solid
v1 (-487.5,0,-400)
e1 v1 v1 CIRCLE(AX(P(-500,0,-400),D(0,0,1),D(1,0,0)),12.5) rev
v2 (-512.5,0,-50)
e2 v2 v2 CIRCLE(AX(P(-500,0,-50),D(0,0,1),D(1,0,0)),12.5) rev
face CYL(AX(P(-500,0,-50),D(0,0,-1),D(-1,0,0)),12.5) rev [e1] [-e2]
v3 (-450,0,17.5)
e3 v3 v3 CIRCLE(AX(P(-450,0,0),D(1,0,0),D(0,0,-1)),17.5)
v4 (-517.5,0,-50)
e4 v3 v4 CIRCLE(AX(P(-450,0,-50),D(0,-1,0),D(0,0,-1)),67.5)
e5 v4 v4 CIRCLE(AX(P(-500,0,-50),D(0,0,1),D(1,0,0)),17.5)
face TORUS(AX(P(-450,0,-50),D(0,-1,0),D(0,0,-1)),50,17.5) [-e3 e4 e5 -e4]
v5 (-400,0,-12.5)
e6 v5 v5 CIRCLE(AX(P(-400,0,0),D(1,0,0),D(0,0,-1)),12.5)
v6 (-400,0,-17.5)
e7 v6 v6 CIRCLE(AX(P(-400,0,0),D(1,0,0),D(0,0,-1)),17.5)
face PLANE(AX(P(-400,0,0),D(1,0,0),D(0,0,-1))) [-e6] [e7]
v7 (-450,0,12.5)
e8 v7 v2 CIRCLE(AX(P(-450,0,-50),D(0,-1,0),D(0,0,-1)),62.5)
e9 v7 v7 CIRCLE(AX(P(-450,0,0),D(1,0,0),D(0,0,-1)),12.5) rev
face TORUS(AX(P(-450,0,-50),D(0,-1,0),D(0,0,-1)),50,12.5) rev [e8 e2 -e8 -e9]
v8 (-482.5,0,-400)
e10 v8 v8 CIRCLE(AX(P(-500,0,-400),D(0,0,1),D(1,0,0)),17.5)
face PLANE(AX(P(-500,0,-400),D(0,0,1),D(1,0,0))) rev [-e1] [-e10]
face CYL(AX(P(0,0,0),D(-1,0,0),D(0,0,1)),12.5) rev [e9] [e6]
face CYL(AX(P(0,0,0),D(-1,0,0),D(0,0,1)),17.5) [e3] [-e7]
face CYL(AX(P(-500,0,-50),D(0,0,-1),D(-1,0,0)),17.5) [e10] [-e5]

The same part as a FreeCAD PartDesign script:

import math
import FreeCAD as App
import Part
import Sketcher
from FreeCAD import Vector
Q = App.Units.Quantity

doc = App.newDocument("Part")
params = doc.addObject("Spreadsheet::Sheet", "Params")
for row, (alias, value) in enumerate([
    ("sketch1_diameter", "35 mm"),
    ("sketch1_diameter2", "25 mm"),
    ("sketch2_radius", "50 mm"),
    ("sketch2_width", "450 mm"),
    ("sketch2_height", "350 mm"),
    ("sketch3_diameter", "35 mm"),
    ("sketch3_diameter2", "25 mm"),
    ("pocket1_length", "250 mm"),
    ("sketch4_diameter", "35 mm"),
    ("sketch4_diameter2", "25 mm"),
    ("pocket2_length", "150 mm"),
], start=1):
    params.set(f"A{row}", alias)
    params.set(f"B{row}", "=" + value)
    params.setAlias(f"B{row}", alias)

body = doc.addObject("PartDesign::Body", "Body")

# Sketch on YZ plane
sketch1 = doc.addObject("Sketcher::SketchObject", "Sketch")
body.addObject(sketch1)
sketch1.AttachmentSupport = (doc.YZ_Plane, [""])
sketch1.MapMode = "FlatFace"
sketch1.addGeometry([
    Part.Circle(Vector(0, 0, 0), Vector(0, 0, 1), 17.5),
    Part.Circle(Vector(0, 0, 0), Vector(0, 0, 1), 12.5),
], False)
sketch1.addConstraint([
    Sketcher.Constraint("Coincident", 0, 3, -1, 1),
    Sketcher.Constraint("Coincident", 1, 3, -1, 1),
    Sketcher.Constraint("Diameter", 0, Q("35 mm")),
    Sketcher.Constraint("Diameter", 1, Q("25 mm")),
])
sketch1.setExpression("Constraints[2]", "Params.sketch1_diameter")
sketch1.setExpression("Constraints[3]", "Params.sketch1_diameter2")

# Sketch on XZ plane
sketch2 = doc.addObject("Sketcher::SketchObject", "Sketch001")
body.addObject(sketch2)
sketch2.AttachmentSupport = (doc.XZ_Plane, [""])
sketch2.MapMode = "FlatFace"
sketch2.addGeometry([
    Part.LineSegment(Vector(0, 0, 0), Vector(-450, 0, 0)),
    Part.ArcOfCircle(Part.Circle(Vector(-450, -50, 0), Vector(0, 0, 1), 50), math.radians(90), math.radians(180)),
    Part.LineSegment(Vector(-500, -50, 0), Vector(-500, -400, 0)),
], False)
sketch2.addConstraint([
    Sketcher.Constraint("Tangent", 0, 2, 1, 1),
    Sketcher.Constraint("Tangent", 1, 2, 2, 1),
    Sketcher.Constraint("Horizontal", 0),
    Sketcher.Constraint("Vertical", 2),
    Sketcher.Constraint("Coincident", 0, 1, -1, 1),
    Sketcher.Constraint("Radius", 1, Q("50 mm")),
    Sketcher.Constraint("DistanceX", 0, 2, 0, 1, Q("450 mm")),
    Sketcher.Constraint("DistanceY", 2, 2, 2, 1, Q("350 mm")),
])
sketch2.setExpression("Constraints[5]", "Params.sketch2_radius")
sketch2.setExpression("Constraints[6]", "Params.sketch2_width")
sketch2.setExpression("Constraints[7]", "Params.sketch2_height")
doc.recompute()

additivepipe = doc.addObject("PartDesign::AdditivePipe", "AdditivePipe")
body.addObject(additivepipe)
additivepipe.Profile = sketch1
additivepipe.Spine = (sketch2, ["Edge1", "Edge2", "Edge3"])

# Sketch on YZ plane
sketch3 = doc.addObject("Sketcher::SketchObject", "Sketch002")
body.addObject(sketch3)
sketch3.AttachmentSupport = (doc.YZ_Plane, [""])
sketch3.MapMode = "FlatFace"
sketch3.AttachmentOffset = App.Placement(Vector(0, 0, -250), App.Rotation())
sketch3.addGeometry([
    Part.Circle(Vector(0, 0, 0), Vector(0, 0, 1), 17.5),
    Part.Circle(Vector(0, 0, 0), Vector(0, 0, 1), 12.5),
], False)
sketch3.addConstraint([
    Sketcher.Constraint("Coincident", 0, 3, -1, 1),
    Sketcher.Constraint("Coincident", 1, 3, -1, 1),
    Sketcher.Constraint("Diameter", 0, Q("35 mm")),
    Sketcher.Constraint("Diameter", 1, Q("25 mm")),
])
sketch3.setExpression("Constraints[2]", "Params.sketch3_diameter")
sketch3.setExpression("Constraints[3]", "Params.sketch3_diameter2")
pocket1 = doc.addObject("PartDesign::Pocket", "Pocket")
body.addObject(pocket1)
pocket1.Profile = sketch3
pocket1.setExpression("Length", "Params.pocket1_length")
pocket1.Reversed = True

# Sketch on YZ plane
sketch4 = doc.addObject("Sketcher::SketchObject", "Sketch003")
body.addObject(sketch4)
sketch4.AttachmentSupport = (doc.YZ_Plane, [""])
sketch4.MapMode = "FlatFace"
sketch4.AttachmentOffset = App.Placement(Vector(0, 0, -250), App.Rotation())
sketch4.addGeometry([
    Part.Circle(Vector(0, 0, 0), Vector(0, 0, 1), 17.5),
    Part.Circle(Vector(0, 0, 0), Vector(0, 0, 1), 12.5),
], False)
sketch4.addConstraint([
    Sketcher.Constraint("Coincident", 0, 3, -1, 1),
    Sketcher.Constraint("Coincident", 1, 3, -1, 1),
    Sketcher.Constraint("Diameter", 0, Q("35 mm")),
    Sketcher.Constraint("Diameter", 1, Q("25 mm")),
])
sketch4.setExpression("Constraints[2]", "Params.sketch4_diameter")
sketch4.setExpression("Constraints[3]", "Params.sketch4_diameter2")
pocket2 = doc.addObject("PartDesign::Pocket", "Pocket001")
body.addObject(pocket2)
pocket2.Profile = sketch4
pocket2.setExpression("Length", "Params.pocket2_length")

doc.recompute()
